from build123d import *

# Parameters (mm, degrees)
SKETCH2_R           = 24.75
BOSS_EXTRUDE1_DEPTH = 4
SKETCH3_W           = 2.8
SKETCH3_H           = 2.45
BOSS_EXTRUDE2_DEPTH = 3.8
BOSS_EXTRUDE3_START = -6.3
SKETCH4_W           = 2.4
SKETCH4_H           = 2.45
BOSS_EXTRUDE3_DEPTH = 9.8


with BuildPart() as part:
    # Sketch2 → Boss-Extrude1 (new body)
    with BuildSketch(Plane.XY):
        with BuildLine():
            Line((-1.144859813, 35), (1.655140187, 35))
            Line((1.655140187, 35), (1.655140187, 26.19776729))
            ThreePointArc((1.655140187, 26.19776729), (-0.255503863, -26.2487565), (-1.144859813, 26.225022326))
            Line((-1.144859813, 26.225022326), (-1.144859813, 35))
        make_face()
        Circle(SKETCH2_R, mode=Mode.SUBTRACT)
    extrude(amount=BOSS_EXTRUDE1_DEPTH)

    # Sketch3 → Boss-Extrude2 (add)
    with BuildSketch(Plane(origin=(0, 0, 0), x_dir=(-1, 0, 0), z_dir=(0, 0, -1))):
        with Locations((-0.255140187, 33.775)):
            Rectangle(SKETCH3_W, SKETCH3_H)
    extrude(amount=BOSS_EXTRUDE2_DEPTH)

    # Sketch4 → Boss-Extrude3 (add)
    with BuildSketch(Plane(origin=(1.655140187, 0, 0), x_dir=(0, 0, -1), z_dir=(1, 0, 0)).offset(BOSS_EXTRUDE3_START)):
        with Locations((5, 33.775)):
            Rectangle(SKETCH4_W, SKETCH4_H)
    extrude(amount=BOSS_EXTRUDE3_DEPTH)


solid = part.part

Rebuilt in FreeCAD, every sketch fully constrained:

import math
import FreeCAD as App
import Part
import Sketcher

V = App.Vector

doc = App.newDocument("Part")
body = doc.addObject("PartDesign::Body", "Body")

# Sketch on XY plane
sketch1 = body.newObject("Sketcher::SketchObject", "Sketch")
sketch1.AttachmentSupport = (doc.getObject("XY_Plane"), [""])
sketch1.MapMode = "FlatFace"
sketch1.addGeometry([
    Part.LineSegment(V(1.7, 35, 0), V(-1.1, 35, 0)),  # 0
    Part.LineSegment(V(-1.1, 35, 0), V(-1.1, 26.2, 0)),  # 1
    Part.ArcOfCircle(Part.Circle(V(0, 0, 0), V(0, 0, 1), 26.2), math.radians(92), math.radians(446)),  # 2
    Part.LineSegment(V(1.7, 26.2, 0), V(1.7, 35, 0)),  # 3
    Part.Circle(V(0, 0, 0), V(0, 0, 1), 24.8),  # 4
], False)
sketch1.addConstraint([
    Sketcher.Constraint("Coincident", 0, 2, 1, 1),
    Sketcher.Constraint("Coincident", 1, 2, 2, 1),
    Sketcher.Constraint("Coincident", 2, 2, 3, 1),
    Sketcher.Constraint("Coincident", 3, 2, 0, 1),
    Sketcher.Constraint("Horizontal", 0),
    Sketcher.Constraint("Vertical", 1),
    Sketcher.Constraint("Vertical", 3),
    Sketcher.Constraint("Coincident", 2, 3, -1, 1),
    Sketcher.Constraint("Coincident", 4, 3, -1, 1),
    Sketcher.Constraint("Diameter", 4, 49.5),
    Sketcher.Constraint("Radius", 2, 26.25),
    Sketcher.Constraint("DistanceX", 0, 2, 0, 1, 2.8),
    Sketcher.Constraint("DistanceY", -1, 1, 0, 2, 35.0),
    Sketcher.Constraint("DistanceY", 1, 2, 1, 1, 8.774978),
])
pad1 = body.newObject("PartDesign::Pad", "Pad")
pad1.Profile = sketch1
pad1.Length = 4

# Sketch on XY plane
sketch2 = body.newObject("Sketcher::SketchObject", "Sketch001")
sketch2.AttachmentSupport = (doc.getObject("XY_Plane"), [""])
sketch2.MapMode = "FlatFace"
sketch2.addGeometry([
    Part.LineSegment(V(1.7, 35, 0), V(1.7, 32.5, 0)),
    Part.LineSegment(V(1.7, 32.5, 0), V(-1.1, 32.5, 0)),
    Part.LineSegment(V(-1.1, 32.5, 0), V(-1.1, 35, 0)),
    Part.LineSegment(V(-1.1, 35, 0), V(1.7, 35, 0)),
], False)
sketch2.addConstraint([
    Sketcher.Constraint("Coincident", 0, 2, 1, 1),
    Sketcher.Constraint("Coincident", 1, 2, 2, 1),
    Sketcher.Constraint("Coincident", 2, 2, 3, 1),
    Sketcher.Constraint("Coincident", 3, 2, 0, 1),
    Sketcher.Constraint("Vertical", 0),
    Sketcher.Constraint("Horizontal", 1),
    Sketcher.Constraint("Vertical", 2),
    Sketcher.Constraint("Horizontal", 3),
    Sketcher.Constraint("DistanceX", 1, 2, 1, 1, 2.8),
    Sketcher.Constraint("DistanceY", -1, 1, 2, 2, 35.0),
    Sketcher.Constraint("DistanceY", 0, 2, 0, 1, 2.45),
    Sketcher.Constraint("DistanceX", -1, 1, 0, 2, 1.65514),
])
pad2 = body.newObject("PartDesign::Pad", "Pad001")
pad2.Profile = sketch2
pad2.Length = 3.8
pad2.Reversed = True

# Sketch on YZ plane
sketch3 = body.newObject("Sketcher::SketchObject", "Sketch002")
sketch3.AttachmentSupport = (doc.getObject("YZ_Plane"), [""])
sketch3.MapMode = "FlatFace"
sketch3.AttachmentOffset = App.Placement(V(0, 0, -4.64486), App.Rotation())
sketch3.addGeometry([
    Part.LineSegment(V(35, -3.8, 0), V(32.5, -3.8, 0)),
    Part.LineSegment(V(32.5, -3.8, 0), V(32.5, -6.2, 0)),
    Part.LineSegment(V(32.5, -6.2, 0), V(35, -6.2, 0)),
    Part.LineSegment(V(35, -6.2, 0), V(35, -3.8, 0)),
], False)
sketch3.addConstraint([
    Sketcher.Constraint("Coincident", 0, 2, 1, 1),
    Sketcher.Constraint("Coincident", 1, 2, 2, 1),
    Sketcher.Constraint("Coincident", 2, 2, 3, 1),
    Sketcher.Constraint("Coincident", 3, 2, 0, 1),
    Sketcher.Constraint("Horizontal", 0),
    Sketcher.Constraint("Vertical", 1),
    Sketcher.Constraint("Horizontal", 2),
    Sketcher.Constraint("Vertical", 3),
    Sketcher.Constraint("DistanceY", 1, 2, 1, 1, 2.4),
    Sketcher.Constraint("DistanceX", -1, 1, 2, 2, 35.0),
    Sketcher.Constraint("DistanceX", 0, 2, 0, 1, 2.45),
    Sketcher.Constraint("DistanceY", 0, 2, -1, 1, 3.8),
])
pad3 = body.newObject("PartDesign::Pad", "Pad002")
pad3.Profile = sketch3
pad3.Length = 9.8

doc.recompute()
